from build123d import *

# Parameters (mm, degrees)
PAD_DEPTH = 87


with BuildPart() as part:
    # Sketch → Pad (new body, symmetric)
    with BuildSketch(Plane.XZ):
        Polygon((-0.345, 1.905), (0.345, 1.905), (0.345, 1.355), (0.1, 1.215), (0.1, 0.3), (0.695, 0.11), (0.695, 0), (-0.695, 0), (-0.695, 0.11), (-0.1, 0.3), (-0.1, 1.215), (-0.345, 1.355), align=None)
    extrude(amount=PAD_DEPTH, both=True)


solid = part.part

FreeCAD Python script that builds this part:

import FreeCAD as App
import Part
import Sketcher

V = App.Vector
Q = App.Units.Quantity


def add_polygon(sketch, points):
    """Adds a closed chain of lines whose ends are joined by coincident constraints."""
    first, n = sketch.GeometryCount, len(points)
    for a, b in zip(points, points[1:] + points[:1]):
        sketch.addGeometry(Part.LineSegment(App.Vector(*a, 0), App.Vector(*b, 0)), False)
    for i in range(n):
        sketch.addConstraint(Sketcher.Constraint("Coincident", first + i, 2, first + (i + 1) % n, 1))

doc = App.newDocument("Part")
body = doc.addObject("PartDesign::Body", "Body")

# Sketch on XZ plane
sketch1 = body.newObject("Sketcher::SketchObject", "Sketch")
sketch1.AttachmentSupport = (doc.getObject("XZ_Plane"), [""])
sketch1.MapMode = "FlatFace"
add_polygon(sketch1, [(0.34, 1.91), (-0.34, 1.91), (-0.34, 1.35), (-0.1, 1.22), (-0.1, 0.3), (-0.69, 0.11), (-0.69, 0), (0.69, 0), (0.69, 0.11), (0.1, 0.3), (0.1, 1.22), (0.34, 1.35)])  # lines 0-11
sketch1.addConstraint([
    Sketcher.Constraint("Horizontal", 0),
    Sketcher.Constraint("Vertical", 1),
    Sketcher.Constraint("Vertical", 3),
    Sketcher.Constraint("Vertical", 5),
    Sketcher.Constraint("Horizontal", 6),
    Sketcher.Constraint("Vertical", 7),
    Sketcher.Constraint("Vertical", 9),
    Sketcher.Constraint("Vertical", 11),
    Sketcher.Constraint("Symmetric", 5, 2, 6, 2, -1, 1),
    Sketcher.Constraint("Symmetric", 3, 2, 8, 2, -2),
    Sketcher.Constraint("Symmetric", 1, 2, 10, 2, -2),
    Sketcher.Constraint("Horizontal", 4, 2, 7, 2),
    Sketcher.Constraint("Horizontal", 2, 2, 9, 2),
    Sketcher.Constraint("DistanceX", 0, 2, 0, 1, Q("0.69 mm")),
    Sketcher.Constraint("DistanceX", 6, 1, 6, 2, Q("1.39 mm")),
    Sketcher.Constraint("DistanceY", 1, 2, 1, 1, Q("0.55 mm")),
    Sketcher.Constraint("DistanceY", 5, 2, 5, 1, Q("0.11 mm")),
    Sketcher.Constraint("DistanceX", 2, 2, -1, 1, Q("0.1 mm")),
    Sketcher.Constraint("DistanceY", -1, 1, 3, 2, Q("0.3 mm")),
    Sketcher.Constraint("DistanceY", 3, 2, 3, 1, Q("0.915 mm")),
    Sketcher.Constraint("DistanceY", 2, 2, 1, 2, Q("0.14 mm")),
])
pad1 = body.newObject("PartDesign::Pad", "Pad")
pad1.Profile = sketch1
pad1.Length = 174
pad1.Midplane = True

doc.recompute()
